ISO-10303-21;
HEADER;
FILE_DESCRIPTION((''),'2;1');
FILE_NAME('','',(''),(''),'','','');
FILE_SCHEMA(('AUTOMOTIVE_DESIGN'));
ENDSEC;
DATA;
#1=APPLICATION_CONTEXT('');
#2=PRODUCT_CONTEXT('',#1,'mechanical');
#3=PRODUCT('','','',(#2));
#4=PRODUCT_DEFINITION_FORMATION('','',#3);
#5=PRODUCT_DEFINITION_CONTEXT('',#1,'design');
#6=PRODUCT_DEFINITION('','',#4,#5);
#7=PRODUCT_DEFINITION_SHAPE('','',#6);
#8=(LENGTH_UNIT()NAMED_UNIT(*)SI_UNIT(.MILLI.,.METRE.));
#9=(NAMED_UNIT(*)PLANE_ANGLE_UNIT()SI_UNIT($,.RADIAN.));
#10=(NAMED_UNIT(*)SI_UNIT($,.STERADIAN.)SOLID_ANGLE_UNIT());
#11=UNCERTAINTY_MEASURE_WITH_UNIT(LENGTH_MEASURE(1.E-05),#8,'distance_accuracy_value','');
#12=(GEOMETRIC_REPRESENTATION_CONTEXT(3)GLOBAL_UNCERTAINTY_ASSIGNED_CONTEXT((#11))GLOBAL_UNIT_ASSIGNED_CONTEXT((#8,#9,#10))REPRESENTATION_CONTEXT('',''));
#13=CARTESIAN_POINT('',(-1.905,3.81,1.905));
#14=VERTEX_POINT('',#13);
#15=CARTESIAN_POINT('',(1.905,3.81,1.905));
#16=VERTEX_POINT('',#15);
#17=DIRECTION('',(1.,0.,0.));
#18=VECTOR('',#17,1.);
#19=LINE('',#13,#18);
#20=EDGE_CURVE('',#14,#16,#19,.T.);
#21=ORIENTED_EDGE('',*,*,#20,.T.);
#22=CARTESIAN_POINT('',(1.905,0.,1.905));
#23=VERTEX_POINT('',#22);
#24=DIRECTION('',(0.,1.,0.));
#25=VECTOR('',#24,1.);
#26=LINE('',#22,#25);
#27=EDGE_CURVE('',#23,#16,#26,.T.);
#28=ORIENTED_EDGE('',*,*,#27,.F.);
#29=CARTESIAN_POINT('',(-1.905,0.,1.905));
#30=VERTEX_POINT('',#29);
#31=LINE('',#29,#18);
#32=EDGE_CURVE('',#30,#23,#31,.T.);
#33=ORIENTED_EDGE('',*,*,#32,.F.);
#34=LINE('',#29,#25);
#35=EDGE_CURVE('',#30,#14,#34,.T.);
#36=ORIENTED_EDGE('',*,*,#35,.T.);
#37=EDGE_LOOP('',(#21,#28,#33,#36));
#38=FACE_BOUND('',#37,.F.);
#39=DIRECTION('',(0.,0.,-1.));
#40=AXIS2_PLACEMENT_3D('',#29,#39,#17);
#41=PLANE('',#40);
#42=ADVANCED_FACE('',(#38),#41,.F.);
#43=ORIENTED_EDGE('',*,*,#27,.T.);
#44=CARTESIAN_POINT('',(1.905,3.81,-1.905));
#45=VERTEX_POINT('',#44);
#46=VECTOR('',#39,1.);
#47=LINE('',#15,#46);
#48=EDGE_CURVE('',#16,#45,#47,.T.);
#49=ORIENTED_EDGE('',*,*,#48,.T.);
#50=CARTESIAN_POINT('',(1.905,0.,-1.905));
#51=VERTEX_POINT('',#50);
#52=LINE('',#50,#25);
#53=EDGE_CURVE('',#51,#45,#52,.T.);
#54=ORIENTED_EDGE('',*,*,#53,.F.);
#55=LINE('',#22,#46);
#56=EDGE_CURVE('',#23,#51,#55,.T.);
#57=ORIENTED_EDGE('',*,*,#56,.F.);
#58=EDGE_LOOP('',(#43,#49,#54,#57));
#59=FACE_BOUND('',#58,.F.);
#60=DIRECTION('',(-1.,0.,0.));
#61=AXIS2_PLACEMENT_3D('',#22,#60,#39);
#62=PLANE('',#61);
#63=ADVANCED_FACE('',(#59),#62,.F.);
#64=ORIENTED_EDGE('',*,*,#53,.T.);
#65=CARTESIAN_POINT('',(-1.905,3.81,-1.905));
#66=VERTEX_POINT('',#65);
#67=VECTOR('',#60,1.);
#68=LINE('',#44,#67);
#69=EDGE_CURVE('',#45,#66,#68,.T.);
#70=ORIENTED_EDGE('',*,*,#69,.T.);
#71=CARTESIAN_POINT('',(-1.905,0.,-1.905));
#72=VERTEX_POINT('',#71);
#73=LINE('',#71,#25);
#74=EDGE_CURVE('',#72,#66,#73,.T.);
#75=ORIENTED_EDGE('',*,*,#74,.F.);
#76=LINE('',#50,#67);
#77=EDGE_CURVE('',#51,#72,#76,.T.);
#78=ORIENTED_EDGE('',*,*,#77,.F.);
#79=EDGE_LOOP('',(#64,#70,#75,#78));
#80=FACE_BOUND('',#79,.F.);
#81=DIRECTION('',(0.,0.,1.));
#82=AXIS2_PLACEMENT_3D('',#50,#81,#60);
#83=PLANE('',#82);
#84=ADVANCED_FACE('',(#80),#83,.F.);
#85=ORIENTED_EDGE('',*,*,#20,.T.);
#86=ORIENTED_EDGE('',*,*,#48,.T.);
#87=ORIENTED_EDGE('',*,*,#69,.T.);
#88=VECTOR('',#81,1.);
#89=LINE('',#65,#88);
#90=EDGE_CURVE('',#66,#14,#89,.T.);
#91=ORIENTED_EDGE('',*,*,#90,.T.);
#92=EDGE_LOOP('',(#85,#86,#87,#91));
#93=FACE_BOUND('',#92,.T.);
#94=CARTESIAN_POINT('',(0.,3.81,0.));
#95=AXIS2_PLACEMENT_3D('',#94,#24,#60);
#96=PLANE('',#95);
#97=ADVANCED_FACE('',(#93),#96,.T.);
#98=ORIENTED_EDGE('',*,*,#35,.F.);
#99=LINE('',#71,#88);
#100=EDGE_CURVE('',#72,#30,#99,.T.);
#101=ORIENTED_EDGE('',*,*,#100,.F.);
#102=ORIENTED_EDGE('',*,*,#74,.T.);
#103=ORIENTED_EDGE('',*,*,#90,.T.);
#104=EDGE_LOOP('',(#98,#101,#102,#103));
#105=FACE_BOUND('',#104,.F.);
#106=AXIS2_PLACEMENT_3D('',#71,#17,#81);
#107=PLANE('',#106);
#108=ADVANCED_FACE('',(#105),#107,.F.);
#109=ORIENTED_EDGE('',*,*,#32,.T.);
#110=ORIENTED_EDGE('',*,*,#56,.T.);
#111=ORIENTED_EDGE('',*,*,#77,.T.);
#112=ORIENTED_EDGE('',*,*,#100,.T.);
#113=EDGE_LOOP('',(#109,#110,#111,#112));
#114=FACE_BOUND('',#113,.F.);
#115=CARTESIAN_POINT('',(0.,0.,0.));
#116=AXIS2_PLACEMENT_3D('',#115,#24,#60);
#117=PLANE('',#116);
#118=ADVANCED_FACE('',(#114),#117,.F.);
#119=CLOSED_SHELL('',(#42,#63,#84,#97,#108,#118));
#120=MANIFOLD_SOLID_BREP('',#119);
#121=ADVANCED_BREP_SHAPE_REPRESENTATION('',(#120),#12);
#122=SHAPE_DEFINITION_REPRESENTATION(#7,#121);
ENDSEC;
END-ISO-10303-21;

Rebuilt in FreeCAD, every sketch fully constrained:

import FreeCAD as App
import Part
import Sketcher

V = App.Vector
Q = App.Units.Quantity


def add_polygon(sketch, points):
    """Adds a closed chain of lines whose ends are joined by coincident constraints."""
    first, n = sketch.GeometryCount, len(points)
    for a, b in zip(points, points[1:] + points[:1]):
        sketch.addGeometry(Part.LineSegment(App.Vector(*a, 0), App.Vector(*b, 0)), False)
    for i in range(n):
        sketch.addConstraint(Sketcher.Constraint("Coincident", first + i, 2, first + (i + 1) % n, 1))

doc = App.newDocument("Part")
params = doc.addObject("Spreadsheet::Sheet", "Params")
for row, (alias, value) in enumerate([
    ("sketch1_width", "0.15 in"),
    ("pad1_length", "0.15 in"),
], start=1):
    params.set(f"A{row}", alias)
    params.set(f"B{row}", "=" + value)
    params.setAlias(f"B{row}", alias)

body = doc.addObject("PartDesign::Body", "Body")

sketch1 = body.newObject("Sketcher::SketchObject", "Sketch")
sketch1.AttachmentSupport = (doc.getObject("XZ_Plane"), [""])
sketch1.MapMode = "FlatFace"
add_polygon(sketch1, [(-1.9, -1.9), (-1.9, 1.9), (1.9, 1.9), (1.9, -1.9)])
sketch1.addConstraint([
    Sketcher.Constraint("Vertical", 0),
    Sketcher.Constraint("Horizontal", 1),
    Sketcher.Constraint("Vertical", 2),
    Sketcher.Constraint("Horizontal", 3),
    Sketcher.Constraint("Symmetric", 0, 2, 2, 2, -1, 1),
    Sketcher.Constraint("Equal", 3, 0),
    Sketcher.Constraint("DistanceX", 1, 1, 1, 2, Q("0.15 in")),
])
sketch1.setExpression("Constraints[10]", "Params.sketch1_width")
pad1 = body.newObject("PartDesign::Pad", "Pad")
pad1.Profile = sketch1
pad1.setExpression("Length", "Params.pad1_length")
pad1.Reversed = True

doc.recompute()
